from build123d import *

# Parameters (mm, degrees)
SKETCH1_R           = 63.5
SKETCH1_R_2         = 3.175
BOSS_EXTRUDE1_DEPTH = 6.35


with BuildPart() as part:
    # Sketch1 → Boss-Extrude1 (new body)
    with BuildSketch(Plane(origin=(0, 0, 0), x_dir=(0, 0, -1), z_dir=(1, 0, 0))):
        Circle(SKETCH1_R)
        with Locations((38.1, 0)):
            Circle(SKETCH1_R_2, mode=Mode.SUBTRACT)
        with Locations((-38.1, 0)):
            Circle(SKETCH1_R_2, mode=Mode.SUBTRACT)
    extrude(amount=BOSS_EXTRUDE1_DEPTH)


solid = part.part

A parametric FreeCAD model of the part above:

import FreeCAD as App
import Part
import Sketcher
Q = App.Units.Quantity

doc = App.newDocument("Part")
params = doc.addObject("Spreadsheet::Sheet", "Params")
for row, (alias, value) in enumerate([
    ("sketch1_diameter", "5 in"),
    ("sketch1_diameter2", "0.25 in"),
    ("pad1_length", "0.25 in"),
], start=1):
    params.set(f"A{row}", alias)
    params.set(f"B{row}", "=" + value)
    params.setAlias(f"B{row}", alias)

body = doc.addObject("PartDesign::Body", "Body")

# Sketch on YZ plane
sketch1 = body.newObject("Sketcher::SketchObject", "Sketch")
sketch1.AttachmentSupport = (doc.getObject("YZ_Plane"), [""])
sketch1.MapMode = "FlatFace"
sketch1.addGeometry(Part.Circle(App.Vector(0, 0, 0), App.Vector(0, 0, 1), 63.5), False)
sketch1.addGeometry(Part.Circle(App.Vector(0, 38.1, 0), App.Vector(0, 0, 1), 3.2), False)
sketch1.addGeometry(Part.Circle(App.Vector(0, -38.1, 0), App.Vector(0, 0, 1), 3.2), False)
sketch1.addConstraint(Sketcher.Constraint("Coincident", 0, 3, -1, 1))
sketch1.addConstraint(Sketcher.Constraint("Equal", 1, 2))
sketch1.addConstraint(Sketcher.Constraint("Symmetric", 1, 3, 2, 3, -1, 1))
sketch1.addConstraint(Sketcher.Constraint("PointOnObject", 1, 3, -2))
sketch1.addConstraint(Sketcher.Constraint("Diameter", 0, Q("5 in")))
sketch1.addConstraint(Sketcher.Constraint("Diameter", 1, Q("0.25 in")))
sketch1.addConstraint(Sketcher.Constraint("DistanceY", 2, 3, 1, 3, Q("3 in")))
sketch1.setExpression("Constraints[4]", "Params.sketch1_diameter")
sketch1.setExpression("Constraints[5]", "Params.sketch1_diameter2")
pad1 = body.newObject("PartDesign::Pad", "Pad")
pad1.Profile = sketch1
pad1.setExpression("Length", "Params.pad1_length")

doc.recompute()
